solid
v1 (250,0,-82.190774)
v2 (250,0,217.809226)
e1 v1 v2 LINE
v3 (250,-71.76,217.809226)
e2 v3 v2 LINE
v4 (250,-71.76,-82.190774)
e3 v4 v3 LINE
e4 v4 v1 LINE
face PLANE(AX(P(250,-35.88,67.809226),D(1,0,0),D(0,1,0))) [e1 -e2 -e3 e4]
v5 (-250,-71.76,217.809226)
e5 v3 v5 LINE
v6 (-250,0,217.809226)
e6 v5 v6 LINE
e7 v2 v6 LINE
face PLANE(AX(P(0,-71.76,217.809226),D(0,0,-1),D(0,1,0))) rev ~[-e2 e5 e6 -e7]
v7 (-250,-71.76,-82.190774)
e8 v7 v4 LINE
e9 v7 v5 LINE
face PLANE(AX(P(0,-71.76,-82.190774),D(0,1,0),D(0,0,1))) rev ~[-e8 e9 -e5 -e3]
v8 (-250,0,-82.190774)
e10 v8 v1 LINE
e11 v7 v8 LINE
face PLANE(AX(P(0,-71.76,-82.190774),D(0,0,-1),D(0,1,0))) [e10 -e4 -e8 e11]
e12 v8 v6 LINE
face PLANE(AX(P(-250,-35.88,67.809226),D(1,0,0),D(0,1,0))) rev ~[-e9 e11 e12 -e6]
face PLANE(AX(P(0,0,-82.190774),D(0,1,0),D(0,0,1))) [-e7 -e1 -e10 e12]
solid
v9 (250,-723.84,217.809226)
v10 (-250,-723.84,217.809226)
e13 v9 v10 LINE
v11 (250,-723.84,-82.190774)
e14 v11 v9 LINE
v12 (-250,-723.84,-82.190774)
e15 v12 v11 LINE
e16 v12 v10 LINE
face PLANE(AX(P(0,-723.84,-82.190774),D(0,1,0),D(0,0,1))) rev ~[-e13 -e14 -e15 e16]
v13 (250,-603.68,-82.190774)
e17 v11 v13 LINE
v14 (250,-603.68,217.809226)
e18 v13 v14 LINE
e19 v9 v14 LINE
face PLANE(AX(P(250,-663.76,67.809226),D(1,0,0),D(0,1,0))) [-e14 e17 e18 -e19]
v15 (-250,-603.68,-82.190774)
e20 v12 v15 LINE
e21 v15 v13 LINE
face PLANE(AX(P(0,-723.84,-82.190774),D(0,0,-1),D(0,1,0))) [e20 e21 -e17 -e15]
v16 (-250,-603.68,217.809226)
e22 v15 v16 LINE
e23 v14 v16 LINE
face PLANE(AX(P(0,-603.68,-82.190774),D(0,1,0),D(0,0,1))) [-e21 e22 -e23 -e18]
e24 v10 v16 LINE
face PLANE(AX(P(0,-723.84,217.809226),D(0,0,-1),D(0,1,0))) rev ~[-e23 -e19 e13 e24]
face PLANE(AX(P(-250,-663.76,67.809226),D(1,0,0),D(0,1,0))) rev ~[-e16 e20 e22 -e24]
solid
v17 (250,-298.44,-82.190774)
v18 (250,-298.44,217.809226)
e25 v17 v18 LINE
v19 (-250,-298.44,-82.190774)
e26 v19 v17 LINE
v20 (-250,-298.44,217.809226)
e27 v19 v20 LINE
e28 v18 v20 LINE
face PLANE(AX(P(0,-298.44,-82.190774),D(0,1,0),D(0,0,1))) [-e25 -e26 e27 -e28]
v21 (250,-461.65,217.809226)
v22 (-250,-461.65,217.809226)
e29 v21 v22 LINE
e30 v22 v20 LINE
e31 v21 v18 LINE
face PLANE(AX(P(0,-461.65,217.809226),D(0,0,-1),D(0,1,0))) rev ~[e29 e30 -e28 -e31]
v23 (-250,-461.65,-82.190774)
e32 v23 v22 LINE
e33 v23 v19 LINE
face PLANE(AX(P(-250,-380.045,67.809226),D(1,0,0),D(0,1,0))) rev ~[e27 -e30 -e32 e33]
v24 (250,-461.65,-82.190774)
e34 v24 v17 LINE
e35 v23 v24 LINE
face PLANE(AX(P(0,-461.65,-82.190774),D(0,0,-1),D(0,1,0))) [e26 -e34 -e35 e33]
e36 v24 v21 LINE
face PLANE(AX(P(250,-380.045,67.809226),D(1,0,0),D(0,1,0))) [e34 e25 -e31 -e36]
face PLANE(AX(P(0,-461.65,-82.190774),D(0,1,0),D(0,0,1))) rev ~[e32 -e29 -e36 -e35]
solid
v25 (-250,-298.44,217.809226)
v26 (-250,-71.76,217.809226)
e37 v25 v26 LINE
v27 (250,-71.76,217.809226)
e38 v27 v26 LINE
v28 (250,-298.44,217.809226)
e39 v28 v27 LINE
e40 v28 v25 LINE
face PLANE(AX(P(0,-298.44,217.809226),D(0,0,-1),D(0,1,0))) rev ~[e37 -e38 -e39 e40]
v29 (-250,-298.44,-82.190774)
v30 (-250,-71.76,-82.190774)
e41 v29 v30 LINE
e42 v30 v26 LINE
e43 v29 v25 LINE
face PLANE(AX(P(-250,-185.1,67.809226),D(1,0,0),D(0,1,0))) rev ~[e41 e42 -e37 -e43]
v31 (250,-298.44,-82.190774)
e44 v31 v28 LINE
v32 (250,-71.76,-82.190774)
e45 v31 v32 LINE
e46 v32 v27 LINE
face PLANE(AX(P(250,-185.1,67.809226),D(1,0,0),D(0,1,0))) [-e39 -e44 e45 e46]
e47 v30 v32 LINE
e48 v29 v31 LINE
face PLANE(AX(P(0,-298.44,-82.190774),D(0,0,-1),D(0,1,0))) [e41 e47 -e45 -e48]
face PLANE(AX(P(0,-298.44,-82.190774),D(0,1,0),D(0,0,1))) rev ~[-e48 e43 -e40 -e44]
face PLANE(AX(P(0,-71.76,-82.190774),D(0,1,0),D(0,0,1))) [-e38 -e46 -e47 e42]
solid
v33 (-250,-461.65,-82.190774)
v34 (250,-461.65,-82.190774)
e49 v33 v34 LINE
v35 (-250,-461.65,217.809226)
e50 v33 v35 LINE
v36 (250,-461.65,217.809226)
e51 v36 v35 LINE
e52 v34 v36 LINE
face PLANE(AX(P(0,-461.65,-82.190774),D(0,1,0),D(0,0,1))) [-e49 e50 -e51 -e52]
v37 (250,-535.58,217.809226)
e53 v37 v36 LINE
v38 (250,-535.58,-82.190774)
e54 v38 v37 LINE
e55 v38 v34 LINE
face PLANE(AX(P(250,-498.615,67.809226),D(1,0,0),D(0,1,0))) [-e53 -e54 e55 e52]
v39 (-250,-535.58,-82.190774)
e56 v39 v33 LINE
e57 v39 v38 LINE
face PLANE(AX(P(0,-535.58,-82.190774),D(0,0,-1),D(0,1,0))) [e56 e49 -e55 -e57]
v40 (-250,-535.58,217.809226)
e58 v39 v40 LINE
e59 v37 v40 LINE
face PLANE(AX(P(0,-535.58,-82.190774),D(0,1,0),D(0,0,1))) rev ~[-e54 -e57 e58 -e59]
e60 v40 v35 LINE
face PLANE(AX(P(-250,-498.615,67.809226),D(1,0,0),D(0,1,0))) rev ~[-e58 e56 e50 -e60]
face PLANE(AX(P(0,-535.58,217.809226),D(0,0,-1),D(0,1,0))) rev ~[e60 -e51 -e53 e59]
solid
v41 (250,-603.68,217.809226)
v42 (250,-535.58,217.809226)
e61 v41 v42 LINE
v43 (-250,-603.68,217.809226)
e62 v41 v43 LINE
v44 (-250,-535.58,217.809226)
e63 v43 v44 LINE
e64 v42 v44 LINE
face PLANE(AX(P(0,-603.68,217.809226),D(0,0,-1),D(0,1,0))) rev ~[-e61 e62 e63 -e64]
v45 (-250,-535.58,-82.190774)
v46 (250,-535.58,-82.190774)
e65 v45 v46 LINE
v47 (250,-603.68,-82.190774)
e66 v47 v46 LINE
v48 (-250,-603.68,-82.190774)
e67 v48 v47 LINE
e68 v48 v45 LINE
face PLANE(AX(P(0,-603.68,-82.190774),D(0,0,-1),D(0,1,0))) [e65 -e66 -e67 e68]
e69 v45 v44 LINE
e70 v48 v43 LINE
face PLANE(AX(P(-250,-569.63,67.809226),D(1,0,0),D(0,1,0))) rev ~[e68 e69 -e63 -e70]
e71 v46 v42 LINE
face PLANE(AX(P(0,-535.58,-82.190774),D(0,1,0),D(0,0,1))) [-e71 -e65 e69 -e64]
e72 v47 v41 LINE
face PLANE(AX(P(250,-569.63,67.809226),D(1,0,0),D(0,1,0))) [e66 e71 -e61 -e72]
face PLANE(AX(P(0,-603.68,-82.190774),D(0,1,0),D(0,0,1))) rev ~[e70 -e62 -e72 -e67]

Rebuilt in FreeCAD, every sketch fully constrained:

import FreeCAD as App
import Part
import Sketcher


def add_polygon(sketch, points):
    """Adds a closed chain of lines whose ends are joined by coincident constraints."""
    first, n = sketch.GeometryCount, len(points)
    for a, b in zip(points, points[1:] + points[:1]):
        sketch.addGeometry(Part.LineSegment(App.Vector(*a, 0), App.Vector(*b, 0)), False)
    for i in range(n):
        sketch.addConstraint(Sketcher.Constraint("Coincident", first + i, 2, first + (i + 1) % n, 1))

doc = App.newDocument("Part")
body = doc.addObject("PartDesign::Body", "Body")

# Sketch on YZ plane
sketch1 = body.newObject("Sketcher::SketchObject", "Sketch")
sketch1.AttachmentSupport = (doc.getObject("YZ_Plane"), [""])
sketch1.MapMode = "FlatFace"
add_polygon(sketch1, [(-461.65, 217.809226), (-461.65, -82.190774), (-298.44, -82.190774), (-298.44, 217.809226)])  # lines 0-3
sketch1.addConstraint([
    Sketcher.Constraint("Vertical", 0),
    Sketcher.Constraint("Horizontal", 1),
    Sketcher.Constraint("Vertical", 2),
    Sketcher.Constraint("Horizontal", 3),
    Sketcher.Constraint("DistanceY", 0, 2, 0, 1, 300.0),
    Sketcher.Constraint("DistanceX", 1, 1, 1, 2, 163.21),
    Sketcher.Constraint("DistanceX", 0, 2, -1, 1, 461.65),
    Sketcher.Constraint("DistanceY", 0, 2, -1, 1, 82.190774),
])
pad1 = body.newObject("PartDesign::Pad", "Pad")
pad1.Profile = sketch1
pad1.Length = 500
pad1.Midplane = True
body2 = doc.addObject("PartDesign::Body", "Body001")

# Sketch on YZ plane
sketch2 = body2.newObject("Sketcher::SketchObject", "Sketch001")
sketch2.AttachmentSupport = (doc.getObject("YZ_Plane001"), [""])
sketch2.MapMode = "FlatFace"
add_polygon(sketch2, [(-535.58, 217.809226), (-535.58, -82.190774), (-461.65, -82.190774), (-461.65, 217.809226)])  # lines 0-3
sketch2.addConstraint([
    Sketcher.Constraint("Vertical", 0),
    Sketcher.Constraint("Horizontal", 1),
    Sketcher.Constraint("Vertical", 2),
    Sketcher.Constraint("Horizontal", 3),
    Sketcher.Constraint("DistanceY", 0, 2, 0, 1, 300.0),
    Sketcher.Constraint("DistanceX", 1, 1, 1, 2, 73.93),
    Sketcher.Constraint("DistanceX", 0, 2, -1, 1, 535.58),
    Sketcher.Constraint("DistanceY", 0, 2, -1, 1, 82.190774),
])
pad2 = body2.newObject("PartDesign::Pad", "Pad001")
pad2.Profile = sketch2
pad2.Length = 500
pad2.Midplane = True
body3 = doc.addObject("PartDesign::Body", "Body002")

# Sketch on YZ plane
sketch3 = body3.newObject("Sketcher::SketchObject", "Sketch002")
sketch3.AttachmentSupport = (doc.getObject("YZ_Plane002"), [""])
sketch3.MapMode = "FlatFace"
add_polygon(sketch3, [(-603.68, 217.809226), (-603.68, -82.190774), (-535.58, -82.190774), (-535.58, 217.809226)])  # lines 0-3
sketch3.addConstraint([
    Sketcher.Constraint("Vertical", 0),
    Sketcher.Constraint("Horizontal", 1),
    Sketcher.Constraint("Vertical", 2),
    Sketcher.Constraint("Horizontal", 3),
    Sketcher.Constraint("DistanceY", 0, 2, 0, 1, 300.0),
    Sketcher.Constraint("DistanceX", 1, 1, 1, 2, 68.1),
    Sketcher.Constraint("DistanceX", 0, 2, -1, 1, 603.68),
    Sketcher.Constraint("DistanceY", 0, 2, -1, 1, 82.190774),
])
pad3 = body3.newObject("PartDesign::Pad", "Pad002")
pad3.Profile = sketch3
pad3.Length = 500
pad3.Midplane = True
body4 = doc.addObject("PartDesign::Body", "Body003")

# Sketch on YZ plane
sketch4 = body4.newObject("Sketcher::SketchObject", "Sketch003")
sketch4.AttachmentSupport = (doc.getObject("YZ_Plane003"), [""])
sketch4.MapMode = "FlatFace"
add_polygon(sketch4, [(-723.84, 217.809226), (-723.84, -82.190774), (-603.68, -82.190774), (-603.68, 217.809226)])  # lines 0-3
sketch4.addConstraint([
    Sketcher.Constraint("Vertical", 0),
    Sketcher.Constraint("Horizontal", 1),
    Sketcher.Constraint("Vertical", 2),
    Sketcher.Constraint("Horizontal", 3),
    Sketcher.Constraint("DistanceY", 0, 2, 0, 1, 300.0),
    Sketcher.Constraint("DistanceX", 1, 1, 1, 2, 120.16),
    Sketcher.Constraint("DistanceX", 0, 2, -1, 1, 723.84),
    Sketcher.Constraint("DistanceY", 0, 2, -1, 1, 82.190774),
])
pad4 = body4.newObject("PartDesign::Pad", "Pad003")
pad4.Profile = sketch4
pad4.Length = 500
pad4.Midplane = True
body5 = doc.addObject("PartDesign::Body", "Body004")

# Sketch on YZ plane
sketch5 = body5.newObject("Sketcher::SketchObject", "Sketch004")
sketch5.AttachmentSupport = (doc.getObject("YZ_Plane004"), [""])
sketch5.MapMode = "FlatFace"
add_polygon(sketch5, [(-71.76, 217.809226), (-71.76, -82.190774), (0, -82.190774), (0, 217.809226)])  # lines 0-3
sketch5.addConstraint([
    Sketcher.Constraint("Vertical", 0),
    Sketcher.Constraint("Horizontal", 1),
    Sketcher.Constraint("Vertical", 2),
    Sketcher.Constraint("Horizontal", 3),
    Sketcher.Constraint("PointOnObject", 1, 2, -2),
    Sketcher.Constraint("DistanceY", 0, 2, 0, 1, 300.0),
    Sketcher.Constraint("DistanceX", 1, 1, 1, 2, 71.76),
    Sketcher.Constraint("DistanceY", 0, 2, -1, 1, 82.190774),
])
pad5 = body5.newObject("PartDesign::Pad", "Pad004")
pad5.Profile = sketch5
pad5.Length = 500
pad5.Midplane = True
body6 = doc.addObject("PartDesign::Body", "Body005")

# Sketch on YZ plane
sketch6 = body6.newObject("Sketcher::SketchObject", "Sketch005")
sketch6.AttachmentSupport = (doc.getObject("YZ_Plane005"), [""])
sketch6.MapMode = "FlatFace"
add_polygon(sketch6, [(-298.44, 217.809226), (-298.44, -82.190774), (-71.76, -82.190774), (-71.76, 217.809226)])  # lines 0-3
sketch6.addConstraint([
    Sketcher.Constraint("Vertical", 0),
    Sketcher.Constraint("Horizontal", 1),
    Sketcher.Constraint("Vertical", 2),
    Sketcher.Constraint("Horizontal", 3),
    Sketcher.Constraint("DistanceY", 0, 2, 0, 1, 300.0),
    Sketcher.Constraint("DistanceX", 1, 1, 1, 2, 226.68),
    Sketcher.Constraint("DistanceX", 0, 2, -1, 1, 298.44),
    Sketcher.Constraint("DistanceY", 0, 2, -1, 1, 82.190774),
])
pad6 = body6.newObject("PartDesign::Pad", "Pad005")
pad6.Profile = sketch6
pad6.Length = 500
pad6.Midplane = True

doc.recompute()
